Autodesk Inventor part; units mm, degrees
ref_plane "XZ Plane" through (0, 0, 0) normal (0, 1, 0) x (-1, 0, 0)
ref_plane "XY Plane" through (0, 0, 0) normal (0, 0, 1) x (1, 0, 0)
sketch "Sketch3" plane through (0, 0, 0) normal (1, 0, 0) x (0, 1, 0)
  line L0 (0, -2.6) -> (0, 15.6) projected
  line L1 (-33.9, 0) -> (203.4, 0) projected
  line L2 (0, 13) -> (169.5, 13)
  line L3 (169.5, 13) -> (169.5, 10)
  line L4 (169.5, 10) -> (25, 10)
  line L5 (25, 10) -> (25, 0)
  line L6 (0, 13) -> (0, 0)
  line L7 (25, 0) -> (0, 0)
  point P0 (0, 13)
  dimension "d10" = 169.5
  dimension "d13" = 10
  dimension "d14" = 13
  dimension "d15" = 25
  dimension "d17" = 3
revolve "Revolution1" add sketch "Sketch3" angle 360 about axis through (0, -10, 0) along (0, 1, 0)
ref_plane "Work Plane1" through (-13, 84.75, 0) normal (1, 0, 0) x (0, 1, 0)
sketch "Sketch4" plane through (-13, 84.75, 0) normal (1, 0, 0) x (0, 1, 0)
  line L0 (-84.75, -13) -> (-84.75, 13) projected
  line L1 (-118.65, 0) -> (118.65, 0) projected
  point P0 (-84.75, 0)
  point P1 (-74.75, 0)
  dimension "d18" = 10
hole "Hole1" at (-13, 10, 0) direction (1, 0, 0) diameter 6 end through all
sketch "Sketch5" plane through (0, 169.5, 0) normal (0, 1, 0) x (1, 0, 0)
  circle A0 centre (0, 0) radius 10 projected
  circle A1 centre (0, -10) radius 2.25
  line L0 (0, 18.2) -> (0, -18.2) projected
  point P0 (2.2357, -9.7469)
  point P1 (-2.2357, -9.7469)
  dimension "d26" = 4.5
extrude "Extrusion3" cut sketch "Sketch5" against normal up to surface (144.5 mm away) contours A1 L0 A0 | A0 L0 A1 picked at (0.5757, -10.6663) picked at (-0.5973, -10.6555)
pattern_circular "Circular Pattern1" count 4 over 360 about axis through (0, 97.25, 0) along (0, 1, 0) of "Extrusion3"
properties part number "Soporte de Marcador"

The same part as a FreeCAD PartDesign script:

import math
import FreeCAD as App
import Part
import Sketcher

V = App.Vector
Q = App.Units.Quantity


def add_polygon(sketch, points):
    """Adds a closed chain of lines whose ends are joined by coincident constraints."""
    first, n = sketch.GeometryCount, len(points)
    for a, b in zip(points, points[1:] + points[:1]):
        sketch.addGeometry(Part.LineSegment(App.Vector(*a, 0), App.Vector(*b, 0)), False)
    for i in range(n):
        sketch.addConstraint(Sketcher.Constraint("Coincident", first + i, 2, first + (i + 1) % n, 1))

doc = App.newDocument("Part")
params = doc.addObject("Spreadsheet::Sheet", "Params")
for row, (alias, value) in enumerate([
    ("sketch1_width", "25 mm"),
    ("sketch1_height", "13 mm"),
    ("sketch1_height2", "10 mm"),
    ("sketch1_width2", "169.5 mm"),
    ("revolution_angle", "360 deg"),
    ("sketch2_diameter", "6 mm"),
    ("hole_diameter", "6 mm"),
    ("sketch3_radius", "2.25 mm"),
    ("sketch3_radius2", "10 mm"),
    ("pocket1_length", "144.5 mm"),
], start=1):
    params.set(f"A{row}", alias)
    params.set(f"B{row}", "=" + value)
    params.setAlias(f"B{row}", alias)

body = doc.addObject("PartDesign::Body", "Body")

sketch1 = doc.addObject("Sketcher::SketchObject", "Sketch")
body.addObject(sketch1)
sketch1.AttachmentSupport = (doc.YZ_Plane, [""])
sketch1.MapMode = "FlatFace"
add_polygon(sketch1, [(0, 13), (0, 0), (25, 0), (25, 10), (169.5, 10), (169.5, 13)])
sketch1.addConstraint(Sketcher.Constraint("Vertical", 0))
sketch1.addConstraint(Sketcher.Constraint("Horizontal", 1))
sketch1.addConstraint(Sketcher.Constraint("Vertical", 2))
sketch1.addConstraint(Sketcher.Constraint("Horizontal", 3))
sketch1.addConstraint(Sketcher.Constraint("Vertical", 4))
sketch1.addConstraint(Sketcher.Constraint("Horizontal", 5))
sketch1.addConstraint(Sketcher.Constraint("Coincident", 0, 2, -1, 1))
sketch1.addConstraint(Sketcher.Constraint("DistanceX", 1, 1, 1, 2, Q("25 mm")))
sketch1.addConstraint(Sketcher.Constraint("DistanceY", 0, 2, 0, 1, Q("13 mm")))
sketch1.addConstraint(Sketcher.Constraint("DistanceY", 2, 1, 2, 2, Q("10 mm")))
sketch1.addConstraint(Sketcher.Constraint("DistanceX", 5, 2, 5, 1, Q("169.5 mm")))
sketch1.setExpression("Constraints[13]", "Params.sketch1_width")
sketch1.setExpression("Constraints[14]", "Params.sketch1_height")
sketch1.setExpression("Constraints[15]", "Params.sketch1_height2")
sketch1.setExpression("Constraints[16]", "Params.sketch1_width2")
revolution = doc.addObject("PartDesign::Revolution", "Revolution")
body.addObject(revolution)
revolution.Profile = sketch1
revolution.ReferenceAxis = (sketch1, ["H_Axis"])
revolution.setExpression("Angle", "Params.revolution_angle")

sketch2 = doc.addObject("Sketcher::SketchObject", "Sketch001")
body.addObject(sketch2)
sketch2.AttachmentSupport = (doc.YZ_Plane, [""])
sketch2.MapMode = "FlatFace"
sketch2.AttachmentOffset = App.Placement(V(0, 0, -13), App.Rotation())
sketch2.addGeometry(Part.Circle(V(10, 0, 0), V(0, 0, 1), 3), False)
sketch2.addConstraint(Sketcher.Constraint("PointOnObject", 0, 3, -1))
sketch2.addConstraint(Sketcher.Constraint("Diameter", 0, Q("6 mm")))
sketch2.addConstraint(Sketcher.Constraint("DistanceX", -1, 1, 0, 3, Q("10 mm")))
sketch2.setExpression("Constraints[1]", "Params.sketch2_diameter")
doc.recompute()
hole = doc.addObject("PartDesign::Hole", "Hole")
body.addObject(hole)
hole.Profile = sketch2
hole.ThreadType = "None"
hole.setExpression("Diameter", "Params.hole_diameter")
hole.DepthType = "ThroughAll"
hole.Reversed = True

sketch3 = doc.addObject("Sketcher::SketchObject", "Sketch002")
body.addObject(sketch3)
sketch3.AttachmentSupport = (doc.XZ_Plane, [""])
sketch3.MapMode = "FlatFace"
sketch3.AttachmentOffset = App.Placement(V(0, 0, -169.5), App.Rotation())
sketch3.addGeometry(Part.ArcOfCircle(Part.Circle(V(0, 0, 0), V(0, 0, 1), 10), math.radians(77), math.radians(103)), False)
sketch3.addGeometry(Part.ArcOfCircle(Part.Circle(V(0, 10, 0), V(0, 0, 1), 2.2), math.radians(-6), math.radians(186)), False)
sketch3.addConstraint(Sketcher.Constraint("Coincident", 0, 1, 1, 1))
sketch3.addConstraint(Sketcher.Constraint("Coincident", 1, 2, 0, 2))
sketch3.addConstraint(Sketcher.Constraint("Coincident", 0, 3, -1, 1))
sketch3.addConstraint(Sketcher.Constraint("PointOnObject", 1, 3, -2))
sketch3.addConstraint(Sketcher.Constraint("Radius", 1, Q("2.25 mm")))
sketch3.addConstraint(Sketcher.Constraint("Radius", 0, Q("10 mm")))
sketch3.addConstraint(Sketcher.Constraint("DistanceY", -1, 1, 1, 3, Q("10 mm")))
sketch3.setExpression("Constraints[4]", "Params.sketch3_radius")
sketch3.setExpression("Constraints[5]", "Params.sketch3_radius2")
pocket1 = doc.addObject("PartDesign::Pocket", "Pocket")
body.addObject(pocket1)
pocket1.Profile = sketch3
pocket1.setExpression("Length", "Params.pocket1_length")
pocket1.Reversed = True
doc.recompute()

polarpattern = doc.addObject("PartDesign::PolarPattern", "PolarPattern")
body.addObject(polarpattern)
polarpattern.Originals = [pocket1]
polarpattern.Axis = (doc.Y_Axis, [""])
polarpattern.Angle = 360
polarpattern.Occurrences = 4
body.Tip = polarpattern

doc.recompute()
